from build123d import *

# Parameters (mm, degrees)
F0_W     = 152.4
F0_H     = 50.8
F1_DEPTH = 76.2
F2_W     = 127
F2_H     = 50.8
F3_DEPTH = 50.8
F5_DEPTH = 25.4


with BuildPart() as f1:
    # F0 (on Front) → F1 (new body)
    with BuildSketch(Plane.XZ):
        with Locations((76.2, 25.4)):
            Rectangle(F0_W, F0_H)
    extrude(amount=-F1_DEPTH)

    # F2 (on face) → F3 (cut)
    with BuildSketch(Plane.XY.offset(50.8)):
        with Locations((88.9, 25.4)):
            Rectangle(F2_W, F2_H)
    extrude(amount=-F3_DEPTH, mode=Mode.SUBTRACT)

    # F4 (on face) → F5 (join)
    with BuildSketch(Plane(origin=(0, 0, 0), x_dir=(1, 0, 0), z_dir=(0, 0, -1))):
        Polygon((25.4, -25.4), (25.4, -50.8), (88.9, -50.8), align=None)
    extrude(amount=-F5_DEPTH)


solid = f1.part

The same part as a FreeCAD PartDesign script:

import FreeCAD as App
import Part
import Sketcher
Q = App.Units.Quantity

doc = App.newDocument("Part")
body = doc.addObject("PartDesign::Body", "Body")

# Sketch on XZ plane
sketch1 = body.newObject("Sketcher::SketchObject", "Sketch")
sketch1.AttachmentSupport = (doc.getObject("XZ_Plane"), [""])
sketch1.MapMode = "FlatFace"
sketch1.addGeometry([
    Part.LineSegment(App.Vector(0, 51, 0), App.Vector(0, 0, 0)),
    Part.LineSegment(App.Vector(0, 0, 0), App.Vector(152, 0, 0)),
    Part.LineSegment(App.Vector(152, 0, 0), App.Vector(152, 51, 0)),
    Part.LineSegment(App.Vector(152, 51, 0), App.Vector(0, 51, 0)),
], False)
sketch1.addConstraint([
    Sketcher.Constraint("Coincident", 0, 2, 1, 1),
    Sketcher.Constraint("Coincident", 1, 2, 2, 1),
    Sketcher.Constraint("Coincident", 2, 2, 3, 1),
    Sketcher.Constraint("Coincident", 3, 2, 0, 1),
    Sketcher.Constraint("Vertical", 0),
    Sketcher.Constraint("Horizontal", 1),
    Sketcher.Constraint("Vertical", 2),
    Sketcher.Constraint("Horizontal", 3),
    Sketcher.Constraint("Coincident", 0, 2, -1, 1),
    Sketcher.Constraint("DistanceX", 1, 1, 1, 2, Q("6 in")),
    Sketcher.Constraint("DistanceY", 0, 2, 0, 1, Q("2 in")),
])
pad1 = body.newObject("PartDesign::Pad", "Pad")
pad1.Profile = sketch1
pad1.Length = Q("3 in")
pad1.Reversed = True

# Sketch on XY plane
sketch2 = body.newObject("Sketcher::SketchObject", "Sketch001")
sketch2.AttachmentSupport = (doc.getObject("XY_Plane"), [""])
sketch2.MapMode = "FlatFace"
sketch2.AttachmentOffset = App.Placement(App.Vector(0, 0, 2 * 25.4), App.Rotation())
sketch2.addGeometry([
    Part.LineSegment(App.Vector(25, 51, 0), App.Vector(25, 0, 0)),
    Part.LineSegment(App.Vector(25, 0, 0), App.Vector(152, 0, 0)),
    Part.LineSegment(App.Vector(152, 0, 0), App.Vector(152, 51, 0)),
    Part.LineSegment(App.Vector(152, 51, 0), App.Vector(25, 51, 0)),
], False)
sketch2.addConstraint([
    Sketcher.Constraint("Coincident", 0, 2, 1, 1),
    Sketcher.Constraint("Coincident", 1, 2, 2, 1),
    Sketcher.Constraint("Coincident", 2, 2, 3, 1),
    Sketcher.Constraint("Coincident", 3, 2, 0, 1),
    Sketcher.Constraint("Vertical", 0),
    Sketcher.Constraint("Horizontal", 1),
    Sketcher.Constraint("Vertical", 2),
    Sketcher.Constraint("Horizontal", 3),
    Sketcher.Constraint("PointOnObject", 0, 2, -1),
    Sketcher.Constraint("DistanceX", 1, 1, 1, 2, Q("5 in")),
    Sketcher.Constraint("DistanceY", 0, 2, 0, 1, Q("2 in")),
    Sketcher.Constraint("DistanceX", -1, 1, 0, 2, Q("1 in")),
])
pocket1 = body.newObject("PartDesign::Pocket", "Pocket")
pocket1.Profile = sketch2
pocket1.Length = Q("2 in")

# Sketch on XY plane
sketch3 = body.newObject("Sketcher::SketchObject", "Sketch002")
sketch3.AttachmentSupport = (doc.getObject("XY_Plane"), [""])
sketch3.MapMode = "FlatFace"
sketch3.addGeometry([
    Part.LineSegment(App.Vector(25, 25, 0), App.Vector(25, 51, 0)),
    Part.LineSegment(App.Vector(25, 51, 0), App.Vector(89, 51, 0)),
    Part.LineSegment(App.Vector(89, 51, 0), App.Vector(25, 25, 0)),
], False)
sketch3.addConstraint([
    Sketcher.Constraint("Coincident", 0, 2, 1, 1),
    Sketcher.Constraint("Coincident", 1, 2, 2, 1),
    Sketcher.Constraint("Coincident", 2, 2, 0, 1),
    Sketcher.Constraint("Vertical", 0),
    Sketcher.Constraint("Horizontal", 1),
    Sketcher.Constraint("DistanceY", 0, 1, 0, 2, Q("1 in")),
    Sketcher.Constraint("DistanceX", 1, 1, 1, 2, Q("2.5 in")),
    Sketcher.Constraint("DistanceX", -1, 1, 0, 2, Q("1 in")),
    Sketcher.Constraint("DistanceY", -1, 1, 0, 2, Q("2 in")),
])
pad2 = body.newObject("PartDesign::Pad", "Pad001")
pad2.Profile = sketch3
pad2.Length = Q("1 in")

doc.recompute()
